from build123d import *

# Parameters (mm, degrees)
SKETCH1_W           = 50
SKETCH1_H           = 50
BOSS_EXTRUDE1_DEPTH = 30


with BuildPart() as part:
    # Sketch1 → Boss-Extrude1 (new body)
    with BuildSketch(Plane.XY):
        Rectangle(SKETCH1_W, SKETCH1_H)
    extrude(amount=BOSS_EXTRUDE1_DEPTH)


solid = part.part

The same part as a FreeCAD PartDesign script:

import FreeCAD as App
import Part
import Sketcher
from FreeCAD import Vector

doc = App.newDocument("Part")
body = doc.addObject("PartDesign::Body", "Body")

# Sketch on XY plane
sketch1 = body.newObject("Sketcher::SketchObject", "Sketch")
sketch1.AttachmentSupport = (doc.getObject("XY_Plane"), [""])
sketch1.MapMode = "FlatFace"
sketch1.addGeometry(Part.LineSegment(Vector(-25, 25, 0), Vector(-25, -25, 0)), False)
sketch1.addGeometry(Part.LineSegment(Vector(-25, -25, 0), Vector(25, -25, 0)), False)
sketch1.addGeometry(Part.LineSegment(Vector(25, -25, 0), Vector(25, 25, 0)), False)
sketch1.addGeometry(Part.LineSegment(Vector(25, 25, 0), Vector(-25, 25, 0)), False)
sketch1.addConstraint(Sketcher.Constraint("Coincident", 0, 2, 1, 1))
sketch1.addConstraint(Sketcher.Constraint("Coincident", 1, 2, 2, 1))
sketch1.addConstraint(Sketcher.Constraint("Coincident", 2, 2, 3, 1))
sketch1.addConstraint(Sketcher.Constraint("Coincident", 3, 2, 0, 1))
sketch1.addConstraint(Sketcher.Constraint("Vertical", 0))
sketch1.addConstraint(Sketcher.Constraint("Horizontal", 1))
sketch1.addConstraint(Sketcher.Constraint("Vertical", 2))
sketch1.addConstraint(Sketcher.Constraint("Horizontal", 3))
sketch1.addConstraint(Sketcher.Constraint("Symmetric", 0, 2, 2, 2, -1, 1))
sketch1.addConstraint(Sketcher.Constraint("Equal", 3, 0))
sketch1.addConstraint(Sketcher.Constraint("DistanceX", 1, 1, 1, 2, 50.0))
pad1 = body.newObject("PartDesign::Pad", "Pad")
pad1.Profile = sketch1
pad1.Length = 30

doc.recompute()
